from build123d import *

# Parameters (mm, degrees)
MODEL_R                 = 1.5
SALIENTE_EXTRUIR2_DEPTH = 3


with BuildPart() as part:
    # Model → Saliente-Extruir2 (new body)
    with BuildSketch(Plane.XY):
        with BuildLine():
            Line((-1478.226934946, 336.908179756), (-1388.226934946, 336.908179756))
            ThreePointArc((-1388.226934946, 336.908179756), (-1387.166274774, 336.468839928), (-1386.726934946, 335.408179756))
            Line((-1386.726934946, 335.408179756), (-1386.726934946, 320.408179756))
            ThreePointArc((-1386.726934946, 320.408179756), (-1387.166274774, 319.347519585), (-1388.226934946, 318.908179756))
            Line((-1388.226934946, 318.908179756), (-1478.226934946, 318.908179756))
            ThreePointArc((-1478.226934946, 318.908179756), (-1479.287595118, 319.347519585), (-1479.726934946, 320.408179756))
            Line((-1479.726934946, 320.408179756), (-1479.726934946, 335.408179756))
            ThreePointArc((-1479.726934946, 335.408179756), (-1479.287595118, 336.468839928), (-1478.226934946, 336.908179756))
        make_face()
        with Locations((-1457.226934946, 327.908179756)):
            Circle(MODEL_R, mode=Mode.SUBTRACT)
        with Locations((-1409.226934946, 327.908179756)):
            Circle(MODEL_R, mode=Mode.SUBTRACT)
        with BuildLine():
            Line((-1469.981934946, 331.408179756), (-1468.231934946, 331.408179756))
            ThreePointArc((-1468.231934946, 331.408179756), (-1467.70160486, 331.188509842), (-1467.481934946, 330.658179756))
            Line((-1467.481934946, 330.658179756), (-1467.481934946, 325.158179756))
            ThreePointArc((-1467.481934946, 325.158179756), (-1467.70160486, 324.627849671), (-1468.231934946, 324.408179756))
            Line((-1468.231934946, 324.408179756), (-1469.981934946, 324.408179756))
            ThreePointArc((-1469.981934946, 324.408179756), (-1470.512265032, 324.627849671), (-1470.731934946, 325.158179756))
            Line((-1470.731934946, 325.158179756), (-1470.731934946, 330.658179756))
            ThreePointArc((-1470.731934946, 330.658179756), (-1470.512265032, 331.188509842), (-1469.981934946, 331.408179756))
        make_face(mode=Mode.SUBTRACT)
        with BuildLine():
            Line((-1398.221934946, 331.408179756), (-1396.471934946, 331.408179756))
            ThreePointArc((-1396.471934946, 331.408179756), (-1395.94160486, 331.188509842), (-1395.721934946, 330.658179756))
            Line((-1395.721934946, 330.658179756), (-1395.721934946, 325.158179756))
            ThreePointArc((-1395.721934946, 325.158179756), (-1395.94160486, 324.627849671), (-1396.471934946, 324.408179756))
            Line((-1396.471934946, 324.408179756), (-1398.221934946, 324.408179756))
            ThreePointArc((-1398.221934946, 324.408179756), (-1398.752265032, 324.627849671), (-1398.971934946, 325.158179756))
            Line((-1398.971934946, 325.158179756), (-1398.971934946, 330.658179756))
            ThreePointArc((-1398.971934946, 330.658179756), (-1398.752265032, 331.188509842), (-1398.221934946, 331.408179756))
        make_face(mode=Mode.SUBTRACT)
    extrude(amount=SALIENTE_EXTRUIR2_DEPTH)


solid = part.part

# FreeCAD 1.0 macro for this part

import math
import FreeCAD as App
import Part
import Sketcher
from FreeCAD import Vector

doc = App.newDocument("Part")
params = doc.addObject("Spreadsheet::Sheet", "Params")
for row, (alias, value) in enumerate([
    ("sketch1_diameter", "3 mm"),
    ("sketch1_width", "90 mm"),
    ("sketch1_height", "15 mm"),
    ("sketch1_radius", "0.75 mm"),
    ("sketch1_height2", "5.5 mm"),
    ("pad1_length", "3 mm"),
], start=1):
    params.set(f"A{row}", alias)
    params.set(f"B{row}", "=" + value)
    params.setAlias(f"B{row}", alias)

body = doc.addObject("PartDesign::Body", "Body")

# Sketch on XY plane
sketch1 = body.newObject("Sketcher::SketchObject", "Sketch")
sketch1.AttachmentSupport = (doc.getObject("XY_Plane"), [""])
sketch1.MapMode = "FlatFace"
sketch1.addGeometry([
    Part.LineSegment(Vector(-1388.2, 336.9, 0), Vector(-1478.2, 336.9, 0)),  # 0
    Part.ArcOfCircle(Part.Circle(Vector(-1478.2, 335.4, 0), Vector(0, 0, 1), 1.5), math.radians(90), math.radians(180)),  # 1
    Part.LineSegment(Vector(-1479.7, 335.4, 0), Vector(-1479.7, 320.4, 0)),  # 2
    Part.ArcOfCircle(Part.Circle(Vector(-1478.2, 320.4, 0), Vector(0, 0, 1), 1.5), math.radians(-180), math.radians(-90)),  # 3
    Part.LineSegment(Vector(-1478.2, 318.9, 0), Vector(-1388.2, 318.9, 0)),  # 4
    Part.ArcOfCircle(Part.Circle(Vector(-1388.2, 320.4, 0), Vector(0, 0, 1), 1.5), math.radians(-90), math.radians(0)),  # 5
    Part.LineSegment(Vector(-1386.7, 320.4, 0), Vector(-1386.7, 335.4, 0)),  # 6
    Part.ArcOfCircle(Part.Circle(Vector(-1388.2, 335.4, 0), Vector(0, 0, 1), 1.5), math.radians(0), math.radians(90)),  # 7
    Part.LineSegment(Vector(-1398.2, 331.4, 0), Vector(-1396.5, 331.4, 0)),  # 8
    Part.ArcOfCircle(Part.Circle(Vector(-1396.5, 330.7, 0), Vector(0, 0, 1), 0.8), math.radians(0), math.radians(90)),  # 9
    Part.LineSegment(Vector(-1395.7, 330.7, 0), Vector(-1395.7, 325.2, 0)),  # 10
    Part.ArcOfCircle(Part.Circle(Vector(-1396.5, 325.2, 0), Vector(0, 0, 1), 0.8), math.radians(-90), math.radians(0)),  # 11
    Part.LineSegment(Vector(-1396.5, 324.4, 0), Vector(-1398.2, 324.4, 0)),  # 12
    Part.ArcOfCircle(Part.Circle(Vector(-1398.2, 325.2, 0), Vector(0, 0, 1), 0.8), math.radians(-180), math.radians(-90)),  # 13
    Part.LineSegment(Vector(-1399, 325.2, 0), Vector(-1399, 330.7, 0)),  # 14
    Part.ArcOfCircle(Part.Circle(Vector(-1398.2, 330.7, 0), Vector(0, 0, 1), 0.8), math.radians(90), math.radians(180)),  # 15
    Part.Circle(Vector(-1409.2, 327.9, 0), Vector(0, 0, 1), 1.5),  # 16
    Part.Circle(Vector(-1457.2, 327.9, 0), Vector(0, 0, 1), 1.5),  # 17
    Part.LineSegment(Vector(-1470, 331.4, 0), Vector(-1468.2, 331.4, 0)),  # 18
    Part.ArcOfCircle(Part.Circle(Vector(-1468.2, 330.7, 0), Vector(0, 0, 1), 0.8), math.radians(0), math.radians(90)),  # 19
    Part.LineSegment(Vector(-1467.5, 330.7, 0), Vector(-1467.5, 325.2, 0)),  # 20
    Part.ArcOfCircle(Part.Circle(Vector(-1468.2, 325.2, 0), Vector(0, 0, 1), 0.8), math.radians(-90), math.radians(0)),  # 21
    Part.LineSegment(Vector(-1468.2, 324.4, 0), Vector(-1470, 324.4, 0)),  # 22
    Part.ArcOfCircle(Part.Circle(Vector(-1470, 325.2, 0), Vector(0, 0, 1), 0.8), math.radians(-180), math.radians(-90)),  # 23
    Part.LineSegment(Vector(-1470.7, 325.2, 0), Vector(-1470.7, 330.7, 0)),  # 24
    Part.ArcOfCircle(Part.Circle(Vector(-1470, 330.7, 0), Vector(0, 0, 1), 0.8), math.radians(90), math.radians(180)),  # 25
], False)
sketch1.addConstraint([
    Sketcher.Constraint("Tangent", 0, 2, 1, 1),
    Sketcher.Constraint("Tangent", 1, 2, 2, 1),
    Sketcher.Constraint("Tangent", 2, 2, 3, 1),
    Sketcher.Constraint("Tangent", 3, 2, 4, 1),
    Sketcher.Constraint("Tangent", 4, 2, 5, 1),
    Sketcher.Constraint("Tangent", 5, 2, 6, 1),
    Sketcher.Constraint("Tangent", 6, 2, 7, 1),
    Sketcher.Constraint("Tangent", 7, 2, 0, 1),
    Sketcher.Constraint("Tangent", 8, 2, 9, 2),
    Sketcher.Constraint("Tangent", 9, 1, 10, 1),
    Sketcher.Constraint("Tangent", 10, 2, 11, 2),
    Sketcher.Constraint("Tangent", 11, 1, 12, 1),
    Sketcher.Constraint("Tangent", 12, 2, 13, 2),
    Sketcher.Constraint("Tangent", 13, 1, 14, 1),
    Sketcher.Constraint("Tangent", 14, 2, 15, 2),
    Sketcher.Constraint("Tangent", 15, 1, 8, 1),
    Sketcher.Constraint("Tangent", 18, 2, 19, 2),
    Sketcher.Constraint("Tangent", 19, 1, 20, 1),
    Sketcher.Constraint("Tangent", 20, 2, 21, 2),
    Sketcher.Constraint("Tangent", 21, 1, 22, 1),
    Sketcher.Constraint("Tangent", 22, 2, 23, 2),
    Sketcher.Constraint("Tangent", 23, 1, 24, 1),
    Sketcher.Constraint("Tangent", 24, 2, 25, 2),
    Sketcher.Constraint("Tangent", 25, 1, 18, 1),
    Sketcher.Constraint("Horizontal", 0),
    Sketcher.Constraint("Vertical", 2),
    Sketcher.Constraint("Horizontal", 4),
    Sketcher.Constraint("Vertical", 6),
    Sketcher.Constraint("Horizontal", 8),
    Sketcher.Constraint("Vertical", 10),
    Sketcher.Constraint("Horizontal", 12),
    Sketcher.Constraint("Vertical", 14),
    Sketcher.Constraint("Horizontal", 18),
    Sketcher.Constraint("Vertical", 20),
    Sketcher.Constraint("Horizontal", 22),
    Sketcher.Constraint("Vertical", 24),
    Sketcher.Constraint("Equal", 1, 3),
    Sketcher.Constraint("Equal", 3, 5),
    Sketcher.Constraint("Equal", 5, 7),
    Sketcher.Constraint("Equal", 9, 11),
    Sketcher.Constraint("Equal", 11, 13),
    Sketcher.Constraint("Equal", 13, 15),
    Sketcher.Constraint("Equal", 7, 16),
    Sketcher.Constraint("Equal", 16, 17),
    Sketcher.Constraint("Equal", 15, 19),
    Sketcher.Constraint("Equal", 19, 21),
    Sketcher.Constraint("Equal", 21, 23),
    Sketcher.Constraint("Equal", 23, 25),
    Sketcher.Constraint("Horizontal", 16, 3, 17, 3),
    Sketcher.Constraint("Horizontal", 15, 3, 19, 3),
    Sketcher.Constraint("Horizontal", 13, 3, 21, 3),
    Sketcher.Constraint("Equal", 12, 18),
    Sketcher.Constraint("Diameter", 16, 3.0),
    Sketcher.Constraint("DistanceX", 0, 2, 0, 1, 90.0),
    Sketcher.Constraint("DistanceY", 2, 2, 2, 1, 15.0),
    Sketcher.Constraint("Radius", 9, 0.75),
    Sketcher.Constraint("DistanceY", 10, 2, 10, 1, 5.5),
    Sketcher.Constraint("DistanceX", 16, 3, 5, 3, 21.0),
    Sketcher.Constraint("DistanceX", 3, 3, 17, 3, 21.0),
    Sketcher.Constraint("DistanceY", 8, 2, 7, 3, 4.0),
    Sketcher.Constraint("DistanceX", 8, 1, 8, 2, 1.75),
    Sketcher.Constraint("DistanceY", 5, 3, 16, 3, 7.5),
    Sketcher.Constraint("DistanceX", 19, 3, 15, 3, 70.01),
    Sketcher.Constraint("DistanceX", 9, 3, 7, 3, 8.245),
    Sketcher.Constraint("DistanceY", -1, 1, 1, 3, 335.40818),
    Sketcher.Constraint("DistanceX", 1, 3, -1, 1, 1478.226935),
])
sketch1.setExpression("Constraints[52]", "Params.sketch1_diameter")
sketch1.setExpression("Constraints[53]", "Params.sketch1_width")
sketch1.setExpression("Constraints[54]", "Params.sketch1_height")
sketch1.setExpression("Constraints[55]", "Params.sketch1_radius")
sketch1.setExpression("Constraints[56]", "Params.sketch1_height2")
pad1 = body.newObject("PartDesign::Pad", "Pad")
pad1.Profile = sketch1
pad1.setExpression("Length", "Params.pad1_length")

doc.recompute()
